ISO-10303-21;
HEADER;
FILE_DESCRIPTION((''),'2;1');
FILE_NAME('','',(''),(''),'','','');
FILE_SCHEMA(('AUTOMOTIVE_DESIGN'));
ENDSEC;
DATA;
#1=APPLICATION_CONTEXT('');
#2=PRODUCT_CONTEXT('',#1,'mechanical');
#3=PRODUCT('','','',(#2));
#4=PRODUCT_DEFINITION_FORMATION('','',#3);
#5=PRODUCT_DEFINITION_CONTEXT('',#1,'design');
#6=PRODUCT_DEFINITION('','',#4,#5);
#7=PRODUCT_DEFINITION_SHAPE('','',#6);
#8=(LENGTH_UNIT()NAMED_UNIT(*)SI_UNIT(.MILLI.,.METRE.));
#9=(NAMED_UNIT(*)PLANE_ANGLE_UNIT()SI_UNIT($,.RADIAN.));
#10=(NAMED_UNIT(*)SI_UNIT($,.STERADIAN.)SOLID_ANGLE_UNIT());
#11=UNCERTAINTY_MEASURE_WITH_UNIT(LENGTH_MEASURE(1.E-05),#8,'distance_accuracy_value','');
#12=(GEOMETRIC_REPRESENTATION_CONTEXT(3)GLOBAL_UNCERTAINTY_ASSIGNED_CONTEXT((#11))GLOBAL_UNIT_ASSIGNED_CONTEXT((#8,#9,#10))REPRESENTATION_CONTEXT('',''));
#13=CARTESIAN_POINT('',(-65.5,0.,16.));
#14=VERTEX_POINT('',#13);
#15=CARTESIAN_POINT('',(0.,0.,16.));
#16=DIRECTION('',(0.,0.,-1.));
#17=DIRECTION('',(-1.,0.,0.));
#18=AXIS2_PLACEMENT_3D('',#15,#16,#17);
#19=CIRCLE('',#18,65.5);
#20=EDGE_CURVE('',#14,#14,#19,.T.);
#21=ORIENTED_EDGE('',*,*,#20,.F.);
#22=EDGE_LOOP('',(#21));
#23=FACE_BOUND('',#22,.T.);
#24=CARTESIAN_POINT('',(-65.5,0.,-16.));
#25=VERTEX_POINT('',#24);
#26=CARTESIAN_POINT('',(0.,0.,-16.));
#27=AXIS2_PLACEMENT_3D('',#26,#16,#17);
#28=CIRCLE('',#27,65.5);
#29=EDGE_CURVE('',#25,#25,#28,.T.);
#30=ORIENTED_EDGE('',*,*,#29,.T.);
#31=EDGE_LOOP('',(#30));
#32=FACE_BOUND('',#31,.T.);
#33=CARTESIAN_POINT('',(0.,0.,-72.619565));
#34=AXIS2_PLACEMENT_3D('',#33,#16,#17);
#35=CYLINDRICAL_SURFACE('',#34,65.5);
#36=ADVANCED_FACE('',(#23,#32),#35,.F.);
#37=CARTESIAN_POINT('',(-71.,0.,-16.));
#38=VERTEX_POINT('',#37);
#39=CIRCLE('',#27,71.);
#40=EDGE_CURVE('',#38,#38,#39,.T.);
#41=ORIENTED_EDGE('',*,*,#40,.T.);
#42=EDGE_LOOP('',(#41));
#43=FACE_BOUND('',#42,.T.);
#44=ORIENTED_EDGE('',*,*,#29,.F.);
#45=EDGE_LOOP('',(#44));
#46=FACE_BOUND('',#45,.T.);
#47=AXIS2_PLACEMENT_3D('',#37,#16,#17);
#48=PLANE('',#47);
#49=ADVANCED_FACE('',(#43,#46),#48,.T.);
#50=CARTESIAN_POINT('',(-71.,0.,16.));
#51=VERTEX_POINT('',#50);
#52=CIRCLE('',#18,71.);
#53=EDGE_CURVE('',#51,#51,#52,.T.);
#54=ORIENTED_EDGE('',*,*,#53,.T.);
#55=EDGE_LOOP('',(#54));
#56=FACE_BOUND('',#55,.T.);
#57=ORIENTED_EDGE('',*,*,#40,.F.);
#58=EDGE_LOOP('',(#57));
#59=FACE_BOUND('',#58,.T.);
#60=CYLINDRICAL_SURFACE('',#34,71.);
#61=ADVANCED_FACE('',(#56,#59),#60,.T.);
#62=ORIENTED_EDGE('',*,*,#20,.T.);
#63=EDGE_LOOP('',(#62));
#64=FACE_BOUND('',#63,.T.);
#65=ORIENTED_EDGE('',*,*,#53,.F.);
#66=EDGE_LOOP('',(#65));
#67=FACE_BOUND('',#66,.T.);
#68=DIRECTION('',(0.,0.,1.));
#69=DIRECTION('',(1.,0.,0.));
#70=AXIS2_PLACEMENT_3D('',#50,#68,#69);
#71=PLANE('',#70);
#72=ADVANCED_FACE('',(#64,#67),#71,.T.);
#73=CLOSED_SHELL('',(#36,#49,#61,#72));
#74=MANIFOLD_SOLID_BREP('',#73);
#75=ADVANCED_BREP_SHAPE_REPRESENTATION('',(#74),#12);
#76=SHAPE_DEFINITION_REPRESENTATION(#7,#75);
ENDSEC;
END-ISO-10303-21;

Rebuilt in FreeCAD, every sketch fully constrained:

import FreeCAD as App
import Part
import Sketcher
Q = App.Units.Quantity

doc = App.newDocument("Part")
body = doc.addObject("PartDesign::Body", "Body")

sketch1 = body.newObject("Sketcher::SketchObject", "Sketch")
sketch1.AttachmentSupport = (doc.getObject("XZ_Plane"), [""])
sketch1.MapMode = "FlatFace"
sketch1.addGeometry([
    Part.LineSegment(App.Vector(-71, -16, 0), App.Vector(-71, 16, 0)),
    Part.LineSegment(App.Vector(-71, 16, 0), App.Vector(-65.5, 16, 0)),
    Part.LineSegment(App.Vector(-65.5, 16, 0), App.Vector(-65.5, -16, 0)),
    Part.LineSegment(App.Vector(-65.5, -16, 0), App.Vector(-71, -16, 0)),
], False)
sketch1.addConstraint([
    Sketcher.Constraint("Coincident", 0, 2, 1, 1),
    Sketcher.Constraint("Coincident", 1, 2, 2, 1),
    Sketcher.Constraint("Coincident", 2, 2, 3, 1),
    Sketcher.Constraint("Coincident", 3, 2, 0, 1),
    Sketcher.Constraint("Vertical", 0),
    Sketcher.Constraint("Horizontal", 1),
    Sketcher.Constraint("Vertical", 2),
    Sketcher.Constraint("Horizontal", 3),
    Sketcher.Constraint("DistanceY", 0, 1, 0, 2, Q("32 mm")),
    Sketcher.Constraint("DistanceX", 1, 1, 1, 2, Q("5.5 mm")),
    Sketcher.Constraint("DistanceX", 0, 2, -1, 1, Q("71 mm")),
    Sketcher.Constraint("DistanceY", -1, 1, 0, 2, Q("16 mm")),
])
revolution = body.newObject("PartDesign::Revolution", "Revolution")
revolution.Profile = sketch1
revolution.ReferenceAxis = (sketch1, ["V_Axis"])
revolution.Angle = 360

doc.recompute()
